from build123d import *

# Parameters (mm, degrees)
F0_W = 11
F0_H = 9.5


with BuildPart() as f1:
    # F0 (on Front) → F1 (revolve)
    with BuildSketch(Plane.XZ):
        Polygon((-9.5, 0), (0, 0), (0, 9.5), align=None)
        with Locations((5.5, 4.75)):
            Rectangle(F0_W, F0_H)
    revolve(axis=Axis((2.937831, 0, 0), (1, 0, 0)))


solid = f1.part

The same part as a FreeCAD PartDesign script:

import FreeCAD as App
import Part
import Sketcher
Q = App.Units.Quantity


def add_polygon(sketch, points):
    """Adds a closed chain of lines whose ends are joined by coincident constraints."""
    first, n = sketch.GeometryCount, len(points)
    for a, b in zip(points, points[1:] + points[:1]):
        sketch.addGeometry(Part.LineSegment(App.Vector(*a, 0), App.Vector(*b, 0)), False)
    for i in range(n):
        sketch.addConstraint(Sketcher.Constraint("Coincident", first + i, 2, first + (i + 1) % n, 1))

doc = App.newDocument("Part")
body = doc.addObject("PartDesign::Body", "Body")

# Sketch on XZ plane
sketch1 = body.newObject("Sketcher::SketchObject", "Sketch")
sketch1.AttachmentSupport = (doc.getObject("XZ_Plane"), [""])
sketch1.MapMode = "FlatFace"
add_polygon(sketch1, [(-10, 0), (11, 0), (11, 10), (0, 10)])  # lines 0-3
sketch1.addConstraint([
    Sketcher.Constraint("Horizontal", 0),
    Sketcher.Constraint("Vertical", 1),
    Sketcher.Constraint("Horizontal", 2),
    Sketcher.Constraint("PointOnObject", 0, 2, -1),
    Sketcher.Constraint("PointOnObject", 2, 2, -2),
    Sketcher.Constraint("DistanceX", 2, 2, 2, 1, 11.0),
    Sketcher.Constraint("Angle", 3, Q("-135 deg")),
    Sketcher.Constraint("DistanceX", 0, 1, 0, 2, 20.5),
])
revolution = body.newObject("PartDesign::Revolution", "Revolution")
revolution.Profile = sketch1
revolution.ReferenceAxis = (sketch1, ["H_Axis"])
revolution.Angle = 360

doc.recompute()
